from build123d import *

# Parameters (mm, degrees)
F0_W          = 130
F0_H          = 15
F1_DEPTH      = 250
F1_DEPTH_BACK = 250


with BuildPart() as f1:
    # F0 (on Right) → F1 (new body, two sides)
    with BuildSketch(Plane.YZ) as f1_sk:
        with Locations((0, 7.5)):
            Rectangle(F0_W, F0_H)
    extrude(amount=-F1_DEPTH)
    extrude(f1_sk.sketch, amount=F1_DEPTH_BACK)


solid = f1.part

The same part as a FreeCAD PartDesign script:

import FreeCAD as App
import Part
import Sketcher

doc = App.newDocument("Part")
params = doc.addObject("Spreadsheet::Sheet", "Params")
for row, (alias, value) in enumerate([
    ("sketch1_width", "130 mm"),
    ("sketch1_height", "15 mm"),
    ("pad1_length", "250 mm"),
    ("pad1_length2", "250 mm"),
], start=1):
    params.set(f"A{row}", alias)
    params.set(f"B{row}", "=" + value)
    params.setAlias(f"B{row}", alias)

body = doc.addObject("PartDesign::Body", "Body")

# Sketch on YZ plane
sketch1 = body.newObject("Sketcher::SketchObject", "Sketch")
sketch1.AttachmentSupport = (doc.getObject("YZ_Plane"), [""])
sketch1.MapMode = "FlatFace"
sketch1.addGeometry([
    Part.LineSegment(App.Vector(-65, 15, 0), App.Vector(-65, 0, 0)),
    Part.LineSegment(App.Vector(-65, 0, 0), App.Vector(65, 0, 0)),
    Part.LineSegment(App.Vector(65, 0, 0), App.Vector(65, 15, 0)),
    Part.LineSegment(App.Vector(65, 15, 0), App.Vector(-65, 15, 0)),
], False)
sketch1.addConstraint([
    Sketcher.Constraint("Coincident", 0, 2, 1, 1),
    Sketcher.Constraint("Coincident", 1, 2, 2, 1),
    Sketcher.Constraint("Coincident", 2, 2, 3, 1),
    Sketcher.Constraint("Coincident", 3, 2, 0, 1),
    Sketcher.Constraint("Vertical", 0),
    Sketcher.Constraint("Horizontal", 1),
    Sketcher.Constraint("Vertical", 2),
    Sketcher.Constraint("Horizontal", 3),
    Sketcher.Constraint("Symmetric", 0, 2, 1, 2, -1, 1),
    Sketcher.Constraint("DistanceX", 1, 1, 1, 2, 130.0),
    Sketcher.Constraint("DistanceY", 0, 2, 0, 1, 15.0),
])
sketch1.setExpression("Constraints[9]", "Params.sketch1_width")
sketch1.setExpression("Constraints[10]", "Params.sketch1_height")
pad1 = body.newObject("PartDesign::Pad", "Pad")
pad1.Profile = sketch1
pad1.Type = "TwoLengths"
pad1.setExpression("Length", "Params.pad1_length")
pad1.setExpression("Length2", "Params.pad1_length2")
pad1.Reversed = True

doc.recompute()
